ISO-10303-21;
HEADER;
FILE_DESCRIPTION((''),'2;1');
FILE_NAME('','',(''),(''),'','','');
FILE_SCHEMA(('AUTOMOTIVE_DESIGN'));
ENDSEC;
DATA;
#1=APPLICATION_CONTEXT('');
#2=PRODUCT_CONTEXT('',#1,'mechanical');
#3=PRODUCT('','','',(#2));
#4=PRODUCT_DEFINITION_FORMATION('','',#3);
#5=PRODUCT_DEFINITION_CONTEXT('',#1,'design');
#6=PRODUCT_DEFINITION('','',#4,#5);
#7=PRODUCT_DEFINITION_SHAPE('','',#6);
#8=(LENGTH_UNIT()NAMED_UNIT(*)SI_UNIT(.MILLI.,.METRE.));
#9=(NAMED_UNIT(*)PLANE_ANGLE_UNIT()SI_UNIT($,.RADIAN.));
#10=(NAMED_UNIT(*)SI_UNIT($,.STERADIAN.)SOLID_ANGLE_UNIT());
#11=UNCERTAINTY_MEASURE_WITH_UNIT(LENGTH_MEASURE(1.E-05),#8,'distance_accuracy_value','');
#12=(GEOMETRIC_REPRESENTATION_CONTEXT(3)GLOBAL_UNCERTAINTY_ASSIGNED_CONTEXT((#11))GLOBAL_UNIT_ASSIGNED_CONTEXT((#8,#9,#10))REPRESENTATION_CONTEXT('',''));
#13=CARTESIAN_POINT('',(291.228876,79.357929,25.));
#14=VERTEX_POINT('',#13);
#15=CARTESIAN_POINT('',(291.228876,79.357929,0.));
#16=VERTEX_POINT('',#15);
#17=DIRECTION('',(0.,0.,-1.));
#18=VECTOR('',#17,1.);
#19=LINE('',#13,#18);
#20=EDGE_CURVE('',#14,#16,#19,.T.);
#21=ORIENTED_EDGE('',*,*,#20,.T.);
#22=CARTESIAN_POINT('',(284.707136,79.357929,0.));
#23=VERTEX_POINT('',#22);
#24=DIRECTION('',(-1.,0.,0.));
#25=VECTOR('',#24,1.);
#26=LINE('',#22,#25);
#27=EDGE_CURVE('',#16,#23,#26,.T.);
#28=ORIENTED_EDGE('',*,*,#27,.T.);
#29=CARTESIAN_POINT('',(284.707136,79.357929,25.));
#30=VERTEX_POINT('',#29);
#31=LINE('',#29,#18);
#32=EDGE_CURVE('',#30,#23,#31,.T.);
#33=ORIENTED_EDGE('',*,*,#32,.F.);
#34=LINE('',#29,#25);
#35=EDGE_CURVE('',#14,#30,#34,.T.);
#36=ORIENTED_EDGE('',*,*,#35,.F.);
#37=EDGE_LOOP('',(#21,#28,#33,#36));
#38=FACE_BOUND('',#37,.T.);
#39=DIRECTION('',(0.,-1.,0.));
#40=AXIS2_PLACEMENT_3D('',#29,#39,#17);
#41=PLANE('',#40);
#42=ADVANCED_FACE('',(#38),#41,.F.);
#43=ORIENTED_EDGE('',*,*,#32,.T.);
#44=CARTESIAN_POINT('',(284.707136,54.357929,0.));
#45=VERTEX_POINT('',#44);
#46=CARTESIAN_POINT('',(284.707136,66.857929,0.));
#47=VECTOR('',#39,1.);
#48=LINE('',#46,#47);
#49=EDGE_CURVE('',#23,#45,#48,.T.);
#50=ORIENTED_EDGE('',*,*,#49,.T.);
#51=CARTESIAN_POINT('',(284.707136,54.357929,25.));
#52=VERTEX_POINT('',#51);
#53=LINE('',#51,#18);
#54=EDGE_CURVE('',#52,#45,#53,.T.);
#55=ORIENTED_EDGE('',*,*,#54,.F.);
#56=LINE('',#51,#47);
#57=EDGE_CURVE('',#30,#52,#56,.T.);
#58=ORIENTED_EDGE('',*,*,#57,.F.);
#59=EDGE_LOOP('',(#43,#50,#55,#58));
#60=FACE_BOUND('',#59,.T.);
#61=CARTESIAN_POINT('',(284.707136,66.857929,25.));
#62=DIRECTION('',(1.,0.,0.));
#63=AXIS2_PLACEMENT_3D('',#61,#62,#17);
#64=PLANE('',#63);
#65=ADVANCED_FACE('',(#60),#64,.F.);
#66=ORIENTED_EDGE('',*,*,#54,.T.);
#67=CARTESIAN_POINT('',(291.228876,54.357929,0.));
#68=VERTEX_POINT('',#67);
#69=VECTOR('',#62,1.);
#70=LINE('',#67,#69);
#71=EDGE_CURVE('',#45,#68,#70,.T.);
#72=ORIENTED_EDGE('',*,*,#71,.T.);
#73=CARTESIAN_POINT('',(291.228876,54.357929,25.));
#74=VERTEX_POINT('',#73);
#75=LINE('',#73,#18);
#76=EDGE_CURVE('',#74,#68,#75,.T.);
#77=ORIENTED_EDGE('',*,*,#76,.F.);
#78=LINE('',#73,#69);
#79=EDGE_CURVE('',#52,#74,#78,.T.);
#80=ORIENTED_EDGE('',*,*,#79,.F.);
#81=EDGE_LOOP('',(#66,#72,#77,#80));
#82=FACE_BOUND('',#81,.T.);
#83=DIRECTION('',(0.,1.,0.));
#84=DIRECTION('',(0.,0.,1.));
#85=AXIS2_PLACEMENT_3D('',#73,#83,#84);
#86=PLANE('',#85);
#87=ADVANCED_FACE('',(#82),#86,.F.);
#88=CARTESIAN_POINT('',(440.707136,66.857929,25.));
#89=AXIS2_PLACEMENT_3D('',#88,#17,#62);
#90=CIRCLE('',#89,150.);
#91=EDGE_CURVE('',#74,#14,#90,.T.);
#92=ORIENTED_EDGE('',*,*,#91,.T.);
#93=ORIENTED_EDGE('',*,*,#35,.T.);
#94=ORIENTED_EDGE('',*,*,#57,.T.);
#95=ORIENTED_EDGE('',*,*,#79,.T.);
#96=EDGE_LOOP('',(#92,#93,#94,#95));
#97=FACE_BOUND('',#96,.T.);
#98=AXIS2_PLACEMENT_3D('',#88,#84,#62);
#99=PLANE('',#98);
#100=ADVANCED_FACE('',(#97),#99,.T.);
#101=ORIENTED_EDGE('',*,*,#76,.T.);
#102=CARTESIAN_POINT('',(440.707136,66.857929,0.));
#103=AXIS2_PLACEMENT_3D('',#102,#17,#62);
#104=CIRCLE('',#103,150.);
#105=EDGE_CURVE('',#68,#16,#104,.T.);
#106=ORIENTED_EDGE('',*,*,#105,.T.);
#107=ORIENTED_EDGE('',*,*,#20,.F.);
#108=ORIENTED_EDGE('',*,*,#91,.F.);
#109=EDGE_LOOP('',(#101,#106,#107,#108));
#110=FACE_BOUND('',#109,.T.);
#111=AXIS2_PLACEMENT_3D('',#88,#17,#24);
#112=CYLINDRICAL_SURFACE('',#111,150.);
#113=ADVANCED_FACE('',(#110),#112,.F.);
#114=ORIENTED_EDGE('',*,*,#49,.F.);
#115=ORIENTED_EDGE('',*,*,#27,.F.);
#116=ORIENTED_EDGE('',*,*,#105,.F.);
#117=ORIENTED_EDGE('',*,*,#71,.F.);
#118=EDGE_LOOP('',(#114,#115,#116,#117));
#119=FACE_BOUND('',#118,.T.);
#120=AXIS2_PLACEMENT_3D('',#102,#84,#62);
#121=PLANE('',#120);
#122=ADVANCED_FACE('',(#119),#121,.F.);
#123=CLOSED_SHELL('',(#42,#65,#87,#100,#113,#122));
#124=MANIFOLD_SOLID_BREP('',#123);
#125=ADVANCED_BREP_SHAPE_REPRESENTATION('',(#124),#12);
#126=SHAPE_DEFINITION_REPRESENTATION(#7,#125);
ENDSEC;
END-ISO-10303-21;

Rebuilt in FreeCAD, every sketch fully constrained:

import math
import FreeCAD as App
import Part
import Sketcher
from FreeCAD import Vector

doc = App.newDocument("Part")
body = doc.addObject("PartDesign::Body", "Body")

# Sketch on XY plane
sketch1 = body.newObject("Sketcher::SketchObject", "Sketch")
sketch1.AttachmentSupport = (doc.getObject("XY_Plane"), [""])
sketch1.MapMode = "FlatFace"
sketch1.addGeometry([
    Part.LineSegment(Vector(291.228876, 79.357929, 0), Vector(284.707136, 79.357929, 0)),
    Part.LineSegment(Vector(284.707136, 79.357929, 0), Vector(284.707136, 54.357929, 0)),
    Part.LineSegment(Vector(284.707136, 54.357929, 0), Vector(291.228876, 54.357929, 0)),
    Part.ArcOfCircle(Part.Circle(Vector(440.707135, 66.857929, 0), Vector(0, 0, 1), 150), math.radians(175.219808), math.radians(184.780192)),
], False)
sketch1.addConstraint([
    Sketcher.Constraint("Coincident", 0, 2, 1, 1),
    Sketcher.Constraint("Coincident", 1, 2, 2, 1),
    Sketcher.Constraint("Coincident", 2, 2, 3, 2),
    Sketcher.Constraint("Coincident", 3, 1, 0, 1),
    Sketcher.Constraint("Horizontal", 0),
    Sketcher.Constraint("Vertical", 1),
    Sketcher.Constraint("Horizontal", 2),
    Sketcher.Constraint("Vertical", 2, 2, 3, 1),
    Sketcher.Constraint("Radius", 3, 150.0),
    Sketcher.Constraint("DistanceY", 1, 2, 1, 1, 25.0),
    Sketcher.Constraint("DistanceX", 0, 2, 3, 3, 156.0),
    Sketcher.Constraint("DistanceY", -1, 1, 3, 3, 66.857929),
    Sketcher.Constraint("DistanceX", -1, 1, 3, 3, 440.707135),
])
pad1 = body.newObject("PartDesign::Pad", "Pad")
pad1.Profile = sketch1
pad1.Length = 25

doc.recompute()
